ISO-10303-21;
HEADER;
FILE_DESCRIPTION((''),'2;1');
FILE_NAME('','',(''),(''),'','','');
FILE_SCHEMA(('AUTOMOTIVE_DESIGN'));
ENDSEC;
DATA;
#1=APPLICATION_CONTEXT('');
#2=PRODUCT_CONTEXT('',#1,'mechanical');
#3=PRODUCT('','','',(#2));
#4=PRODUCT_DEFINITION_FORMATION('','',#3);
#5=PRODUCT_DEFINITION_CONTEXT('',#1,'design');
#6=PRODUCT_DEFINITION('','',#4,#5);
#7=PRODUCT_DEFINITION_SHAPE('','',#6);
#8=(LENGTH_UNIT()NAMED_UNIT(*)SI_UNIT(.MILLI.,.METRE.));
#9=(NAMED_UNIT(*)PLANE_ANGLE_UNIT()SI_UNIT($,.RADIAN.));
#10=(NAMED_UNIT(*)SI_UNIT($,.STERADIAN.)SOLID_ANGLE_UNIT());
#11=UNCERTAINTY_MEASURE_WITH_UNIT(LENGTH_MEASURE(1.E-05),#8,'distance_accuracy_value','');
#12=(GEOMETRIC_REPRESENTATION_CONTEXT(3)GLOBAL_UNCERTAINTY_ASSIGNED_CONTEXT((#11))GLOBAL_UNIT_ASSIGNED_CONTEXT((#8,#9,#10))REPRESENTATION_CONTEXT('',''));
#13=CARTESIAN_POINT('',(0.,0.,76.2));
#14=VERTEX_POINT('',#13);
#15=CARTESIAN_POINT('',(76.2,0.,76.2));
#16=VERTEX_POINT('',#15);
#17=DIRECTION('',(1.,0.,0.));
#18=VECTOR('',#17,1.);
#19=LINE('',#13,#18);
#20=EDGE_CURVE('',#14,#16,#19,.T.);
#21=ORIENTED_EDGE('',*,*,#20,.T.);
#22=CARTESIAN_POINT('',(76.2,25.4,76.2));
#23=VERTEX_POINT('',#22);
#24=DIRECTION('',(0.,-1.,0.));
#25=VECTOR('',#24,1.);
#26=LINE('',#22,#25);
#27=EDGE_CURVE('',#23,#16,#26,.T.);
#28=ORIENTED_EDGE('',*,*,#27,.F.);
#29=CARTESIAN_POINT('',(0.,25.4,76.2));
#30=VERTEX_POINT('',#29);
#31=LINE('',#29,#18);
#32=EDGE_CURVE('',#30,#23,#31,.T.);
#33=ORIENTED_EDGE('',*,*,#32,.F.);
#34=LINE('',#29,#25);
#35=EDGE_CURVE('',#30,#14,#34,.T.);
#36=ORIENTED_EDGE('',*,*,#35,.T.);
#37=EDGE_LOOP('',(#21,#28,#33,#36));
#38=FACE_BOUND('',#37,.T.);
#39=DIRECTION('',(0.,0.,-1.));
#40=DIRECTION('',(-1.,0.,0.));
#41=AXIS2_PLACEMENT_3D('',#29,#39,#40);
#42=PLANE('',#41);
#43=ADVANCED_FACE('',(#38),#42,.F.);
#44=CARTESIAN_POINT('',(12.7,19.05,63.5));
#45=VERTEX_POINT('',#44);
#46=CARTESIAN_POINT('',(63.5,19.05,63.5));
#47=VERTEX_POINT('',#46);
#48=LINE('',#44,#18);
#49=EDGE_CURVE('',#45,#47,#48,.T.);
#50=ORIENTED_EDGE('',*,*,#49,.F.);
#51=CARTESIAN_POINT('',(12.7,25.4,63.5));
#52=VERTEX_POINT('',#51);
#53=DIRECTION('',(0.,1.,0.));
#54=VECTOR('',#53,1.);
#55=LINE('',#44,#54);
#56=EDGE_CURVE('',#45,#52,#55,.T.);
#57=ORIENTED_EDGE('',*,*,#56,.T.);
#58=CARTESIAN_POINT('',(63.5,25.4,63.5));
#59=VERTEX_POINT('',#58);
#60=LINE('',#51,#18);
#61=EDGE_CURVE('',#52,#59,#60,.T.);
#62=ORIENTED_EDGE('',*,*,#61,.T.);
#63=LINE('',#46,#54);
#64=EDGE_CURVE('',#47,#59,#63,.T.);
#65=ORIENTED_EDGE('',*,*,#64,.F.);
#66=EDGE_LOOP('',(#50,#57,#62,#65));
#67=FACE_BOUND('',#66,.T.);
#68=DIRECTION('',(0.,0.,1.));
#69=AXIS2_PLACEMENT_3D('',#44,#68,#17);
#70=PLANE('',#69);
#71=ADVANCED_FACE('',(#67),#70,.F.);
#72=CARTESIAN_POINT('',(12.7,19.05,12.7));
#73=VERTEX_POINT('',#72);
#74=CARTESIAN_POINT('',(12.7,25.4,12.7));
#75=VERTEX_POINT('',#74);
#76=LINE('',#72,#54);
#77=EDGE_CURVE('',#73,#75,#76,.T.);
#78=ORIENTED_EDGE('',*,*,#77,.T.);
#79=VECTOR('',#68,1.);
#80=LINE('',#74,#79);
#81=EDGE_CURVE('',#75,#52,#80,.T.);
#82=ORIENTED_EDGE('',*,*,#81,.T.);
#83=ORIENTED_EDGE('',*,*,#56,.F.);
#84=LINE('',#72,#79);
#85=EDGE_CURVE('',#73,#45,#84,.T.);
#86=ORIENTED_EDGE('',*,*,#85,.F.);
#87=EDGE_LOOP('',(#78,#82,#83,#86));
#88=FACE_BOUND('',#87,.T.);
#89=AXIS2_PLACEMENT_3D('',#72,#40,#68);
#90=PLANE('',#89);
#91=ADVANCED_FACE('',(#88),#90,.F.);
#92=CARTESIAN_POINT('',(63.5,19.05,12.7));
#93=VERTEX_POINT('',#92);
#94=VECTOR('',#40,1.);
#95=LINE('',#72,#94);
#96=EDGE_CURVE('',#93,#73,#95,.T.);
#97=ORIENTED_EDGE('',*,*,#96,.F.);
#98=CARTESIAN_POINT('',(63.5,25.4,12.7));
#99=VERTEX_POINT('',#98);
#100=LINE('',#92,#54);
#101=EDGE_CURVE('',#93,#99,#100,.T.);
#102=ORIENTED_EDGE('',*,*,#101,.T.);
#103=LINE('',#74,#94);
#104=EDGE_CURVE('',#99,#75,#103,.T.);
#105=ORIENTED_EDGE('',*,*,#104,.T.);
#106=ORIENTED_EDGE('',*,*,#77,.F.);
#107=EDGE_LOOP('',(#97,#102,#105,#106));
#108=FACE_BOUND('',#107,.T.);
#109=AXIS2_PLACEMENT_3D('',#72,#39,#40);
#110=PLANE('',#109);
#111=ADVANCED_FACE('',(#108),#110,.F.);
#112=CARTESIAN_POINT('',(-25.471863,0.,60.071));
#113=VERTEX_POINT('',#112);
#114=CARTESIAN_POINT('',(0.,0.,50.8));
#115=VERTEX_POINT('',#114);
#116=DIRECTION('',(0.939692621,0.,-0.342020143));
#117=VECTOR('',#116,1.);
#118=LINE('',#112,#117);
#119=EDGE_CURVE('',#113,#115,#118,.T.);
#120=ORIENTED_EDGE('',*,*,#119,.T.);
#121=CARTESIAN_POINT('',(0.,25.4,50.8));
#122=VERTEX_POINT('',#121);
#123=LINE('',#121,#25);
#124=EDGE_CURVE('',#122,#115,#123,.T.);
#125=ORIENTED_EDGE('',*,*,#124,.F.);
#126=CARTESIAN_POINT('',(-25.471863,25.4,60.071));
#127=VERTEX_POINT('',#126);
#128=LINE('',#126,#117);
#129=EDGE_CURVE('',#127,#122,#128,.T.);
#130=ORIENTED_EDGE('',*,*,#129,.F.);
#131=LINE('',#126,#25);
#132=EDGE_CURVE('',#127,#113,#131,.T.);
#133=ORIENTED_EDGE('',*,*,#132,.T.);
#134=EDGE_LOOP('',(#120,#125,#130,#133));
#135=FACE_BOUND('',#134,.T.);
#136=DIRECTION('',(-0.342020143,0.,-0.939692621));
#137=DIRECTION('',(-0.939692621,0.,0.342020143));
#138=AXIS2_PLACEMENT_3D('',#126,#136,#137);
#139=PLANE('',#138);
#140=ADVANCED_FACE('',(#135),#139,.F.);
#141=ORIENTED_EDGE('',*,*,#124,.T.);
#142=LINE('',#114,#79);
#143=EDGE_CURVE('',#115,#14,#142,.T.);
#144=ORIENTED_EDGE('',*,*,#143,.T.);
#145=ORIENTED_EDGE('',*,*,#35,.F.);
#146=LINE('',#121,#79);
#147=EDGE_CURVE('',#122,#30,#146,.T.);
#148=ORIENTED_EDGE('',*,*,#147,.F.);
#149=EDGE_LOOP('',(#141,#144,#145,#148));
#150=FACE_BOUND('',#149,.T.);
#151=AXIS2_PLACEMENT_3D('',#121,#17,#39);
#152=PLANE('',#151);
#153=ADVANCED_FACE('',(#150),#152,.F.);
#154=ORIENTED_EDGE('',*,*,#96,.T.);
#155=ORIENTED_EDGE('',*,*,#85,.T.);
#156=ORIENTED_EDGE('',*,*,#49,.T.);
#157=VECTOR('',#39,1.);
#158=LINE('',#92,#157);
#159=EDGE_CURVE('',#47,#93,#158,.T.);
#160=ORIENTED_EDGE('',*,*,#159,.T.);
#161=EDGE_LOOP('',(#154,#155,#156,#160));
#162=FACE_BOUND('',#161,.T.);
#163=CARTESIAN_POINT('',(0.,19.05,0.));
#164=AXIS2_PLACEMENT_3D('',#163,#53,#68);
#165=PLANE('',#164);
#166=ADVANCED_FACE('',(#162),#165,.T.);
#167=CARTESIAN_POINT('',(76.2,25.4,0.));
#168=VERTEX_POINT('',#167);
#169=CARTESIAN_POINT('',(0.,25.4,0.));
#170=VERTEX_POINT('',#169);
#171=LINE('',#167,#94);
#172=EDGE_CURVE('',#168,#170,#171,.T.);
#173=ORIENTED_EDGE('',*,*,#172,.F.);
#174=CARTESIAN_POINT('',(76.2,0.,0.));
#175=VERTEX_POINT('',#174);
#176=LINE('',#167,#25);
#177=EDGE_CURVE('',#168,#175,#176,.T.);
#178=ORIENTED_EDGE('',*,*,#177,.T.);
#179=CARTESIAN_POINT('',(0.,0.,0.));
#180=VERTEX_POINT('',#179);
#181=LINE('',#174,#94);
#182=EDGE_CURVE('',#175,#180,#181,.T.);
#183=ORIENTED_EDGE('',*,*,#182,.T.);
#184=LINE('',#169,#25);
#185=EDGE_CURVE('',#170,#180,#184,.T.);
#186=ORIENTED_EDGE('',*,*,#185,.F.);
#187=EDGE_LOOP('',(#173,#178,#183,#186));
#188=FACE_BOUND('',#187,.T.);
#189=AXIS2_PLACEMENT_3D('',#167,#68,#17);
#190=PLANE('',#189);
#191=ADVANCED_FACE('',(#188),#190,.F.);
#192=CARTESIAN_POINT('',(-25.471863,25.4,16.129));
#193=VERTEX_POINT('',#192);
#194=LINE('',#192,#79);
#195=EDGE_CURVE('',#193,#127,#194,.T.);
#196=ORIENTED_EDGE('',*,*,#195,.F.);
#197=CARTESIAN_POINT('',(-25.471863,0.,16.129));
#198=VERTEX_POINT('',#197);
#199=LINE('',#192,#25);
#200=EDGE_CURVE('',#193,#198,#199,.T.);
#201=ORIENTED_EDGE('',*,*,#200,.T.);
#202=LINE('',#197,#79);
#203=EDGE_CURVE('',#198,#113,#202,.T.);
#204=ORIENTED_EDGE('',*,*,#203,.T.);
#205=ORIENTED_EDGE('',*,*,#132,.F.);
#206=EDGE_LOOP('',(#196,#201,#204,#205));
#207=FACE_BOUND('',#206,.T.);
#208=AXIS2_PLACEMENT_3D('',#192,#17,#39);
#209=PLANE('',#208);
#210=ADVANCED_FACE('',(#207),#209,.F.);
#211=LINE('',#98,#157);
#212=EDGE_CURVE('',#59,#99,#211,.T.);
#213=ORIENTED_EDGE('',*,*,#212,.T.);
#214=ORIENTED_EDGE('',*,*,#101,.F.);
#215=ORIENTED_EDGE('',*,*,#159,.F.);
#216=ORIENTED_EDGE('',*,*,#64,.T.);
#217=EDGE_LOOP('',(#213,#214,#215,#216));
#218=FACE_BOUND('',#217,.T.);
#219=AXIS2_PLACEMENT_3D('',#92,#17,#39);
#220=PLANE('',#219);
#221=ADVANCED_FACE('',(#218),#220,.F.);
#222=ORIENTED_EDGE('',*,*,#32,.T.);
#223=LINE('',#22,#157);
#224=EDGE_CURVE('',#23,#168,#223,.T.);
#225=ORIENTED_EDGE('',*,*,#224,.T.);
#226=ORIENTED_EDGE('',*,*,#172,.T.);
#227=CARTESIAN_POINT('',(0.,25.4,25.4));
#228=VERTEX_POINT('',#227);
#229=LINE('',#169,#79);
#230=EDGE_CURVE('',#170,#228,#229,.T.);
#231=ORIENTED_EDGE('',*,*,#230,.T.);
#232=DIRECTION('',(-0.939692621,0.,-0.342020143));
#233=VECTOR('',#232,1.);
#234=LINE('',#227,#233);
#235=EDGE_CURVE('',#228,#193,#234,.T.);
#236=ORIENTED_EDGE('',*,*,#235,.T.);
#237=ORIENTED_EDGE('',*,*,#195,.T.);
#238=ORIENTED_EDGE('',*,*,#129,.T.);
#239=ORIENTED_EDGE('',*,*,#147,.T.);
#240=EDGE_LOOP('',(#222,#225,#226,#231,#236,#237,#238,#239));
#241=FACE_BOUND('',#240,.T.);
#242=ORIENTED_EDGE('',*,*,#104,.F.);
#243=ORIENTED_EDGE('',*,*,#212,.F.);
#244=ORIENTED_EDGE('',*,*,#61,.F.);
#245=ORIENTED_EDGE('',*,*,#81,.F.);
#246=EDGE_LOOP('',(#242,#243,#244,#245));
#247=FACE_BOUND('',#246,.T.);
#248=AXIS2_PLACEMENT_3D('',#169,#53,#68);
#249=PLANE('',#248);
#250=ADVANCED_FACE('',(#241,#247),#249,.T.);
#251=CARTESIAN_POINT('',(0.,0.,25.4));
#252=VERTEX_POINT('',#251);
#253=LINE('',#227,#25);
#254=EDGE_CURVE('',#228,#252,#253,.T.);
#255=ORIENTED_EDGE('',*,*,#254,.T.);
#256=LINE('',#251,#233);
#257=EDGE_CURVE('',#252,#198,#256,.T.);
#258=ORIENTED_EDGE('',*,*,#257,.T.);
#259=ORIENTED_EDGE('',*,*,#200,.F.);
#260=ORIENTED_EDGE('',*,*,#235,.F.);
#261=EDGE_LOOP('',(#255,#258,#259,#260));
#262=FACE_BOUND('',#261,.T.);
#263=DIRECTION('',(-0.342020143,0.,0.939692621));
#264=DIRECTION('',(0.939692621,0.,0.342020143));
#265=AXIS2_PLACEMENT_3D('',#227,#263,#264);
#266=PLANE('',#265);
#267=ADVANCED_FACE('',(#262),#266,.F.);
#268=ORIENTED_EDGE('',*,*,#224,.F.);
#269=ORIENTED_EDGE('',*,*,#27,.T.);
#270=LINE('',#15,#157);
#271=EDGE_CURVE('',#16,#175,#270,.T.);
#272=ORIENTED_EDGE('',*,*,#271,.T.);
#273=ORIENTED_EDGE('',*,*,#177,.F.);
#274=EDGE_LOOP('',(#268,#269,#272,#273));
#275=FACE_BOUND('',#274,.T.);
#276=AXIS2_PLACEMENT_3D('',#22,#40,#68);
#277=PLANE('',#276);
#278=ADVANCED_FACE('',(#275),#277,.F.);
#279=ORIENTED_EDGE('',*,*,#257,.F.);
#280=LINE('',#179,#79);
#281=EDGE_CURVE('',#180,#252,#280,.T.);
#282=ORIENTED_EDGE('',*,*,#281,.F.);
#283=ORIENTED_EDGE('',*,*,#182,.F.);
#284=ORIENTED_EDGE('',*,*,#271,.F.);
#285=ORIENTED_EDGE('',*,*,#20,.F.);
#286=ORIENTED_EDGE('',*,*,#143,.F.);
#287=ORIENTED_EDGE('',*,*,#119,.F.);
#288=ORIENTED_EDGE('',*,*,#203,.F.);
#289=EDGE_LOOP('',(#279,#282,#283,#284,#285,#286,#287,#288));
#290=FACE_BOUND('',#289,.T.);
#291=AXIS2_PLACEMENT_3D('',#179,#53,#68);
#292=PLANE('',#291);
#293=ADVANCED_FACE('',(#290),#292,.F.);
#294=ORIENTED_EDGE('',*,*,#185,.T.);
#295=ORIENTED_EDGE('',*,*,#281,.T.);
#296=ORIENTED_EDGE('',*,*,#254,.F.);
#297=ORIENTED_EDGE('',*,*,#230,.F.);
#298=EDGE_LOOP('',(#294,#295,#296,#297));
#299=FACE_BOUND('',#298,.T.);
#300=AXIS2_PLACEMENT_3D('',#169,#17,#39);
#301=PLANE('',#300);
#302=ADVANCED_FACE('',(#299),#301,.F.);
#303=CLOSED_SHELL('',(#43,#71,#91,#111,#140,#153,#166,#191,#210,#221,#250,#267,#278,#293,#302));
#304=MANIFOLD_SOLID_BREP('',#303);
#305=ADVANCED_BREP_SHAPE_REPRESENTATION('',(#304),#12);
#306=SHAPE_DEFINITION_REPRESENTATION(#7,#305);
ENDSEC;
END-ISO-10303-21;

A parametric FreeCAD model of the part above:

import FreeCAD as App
import Part
import Sketcher
from FreeCAD import Vector
Q = App.Units.Quantity

doc = App.newDocument("Part")
body = doc.addObject("PartDesign::Body", "Body")

# Sketch on XZ plane
sketch1 = doc.addObject("Sketcher::SketchObject", "Sketch")
body.addObject(sketch1)
sketch1.AttachmentSupport = (doc.XZ_Plane, [""])
sketch1.MapMode = "FlatFace"
sketch1.addGeometry(Part.LineSegment(Vector(0, 25, 0), Vector(-25, 16, 0)), False)
sketch1.addGeometry(Part.LineSegment(Vector(-25, 16, 0), Vector(-25, 60, 0)), False)
sketch1.addGeometry(Part.LineSegment(Vector(-25, 60, 0), Vector(0, 51, 0)), False)
sketch1.addGeometry(Part.LineSegment(Vector(0, 51, 0), Vector(0, 76, 0)), False)
sketch1.addGeometry(Part.LineSegment(Vector(0, 76, 0), Vector(76, 76, 0)), False)
sketch1.addGeometry(Part.LineSegment(Vector(76, 76, 0), Vector(76, 0, 0)), False)
sketch1.addGeometry(Part.LineSegment(Vector(76, 0, 0), Vector(0, 0, 0)), False)
sketch1.addGeometry(Part.LineSegment(Vector(0, 0, 0), Vector(0, 25, 0)), False)
sketch1.addConstraint(Sketcher.Constraint("Coincident", 0, 2, 1, 1))
sketch1.addConstraint(Sketcher.Constraint("Coincident", 1, 2, 2, 1))
sketch1.addConstraint(Sketcher.Constraint("Coincident", 2, 2, 3, 1))
sketch1.addConstraint(Sketcher.Constraint("Coincident", 3, 2, 4, 1))
sketch1.addConstraint(Sketcher.Constraint("Coincident", 4, 2, 5, 1))
sketch1.addConstraint(Sketcher.Constraint("Coincident", 5, 2, 6, 1))
sketch1.addConstraint(Sketcher.Constraint("Coincident", 6, 2, 7, 1))
sketch1.addConstraint(Sketcher.Constraint("Coincident", 7, 2, 0, 1))
sketch1.addConstraint(Sketcher.Constraint("Vertical", 1))
sketch1.addConstraint(Sketcher.Constraint("Vertical", 3))
sketch1.addConstraint(Sketcher.Constraint("Horizontal", 4))
sketch1.addConstraint(Sketcher.Constraint("Vertical", 5))
sketch1.addConstraint(Sketcher.Constraint("Horizontal", 6))
sketch1.addConstraint(Sketcher.Constraint("Vertical", 7))
sketch1.addConstraint(Sketcher.Constraint("Coincident", 6, 2, -1, 1))
sketch1.addConstraint(Sketcher.Constraint("PointOnObject", 2, 2, -2))
sketch1.addConstraint(Sketcher.Constraint("Equal", 6, 5))
sketch1.addConstraint(Sketcher.Constraint("Equal", 3, 7))
sketch1.addConstraint(Sketcher.Constraint("Equal", 0, 2))
sketch1.addConstraint(Sketcher.Constraint("DistanceX", 4, 1, 4, 2, Q("3 in")))
sketch1.addConstraint(Sketcher.Constraint("DistanceY", 3, 1, 3, 2, Q("1 in")))
sketch1.addConstraint(Sketcher.Constraint("Angle", 0, Q("-160 deg")))
sketch1.addConstraint(Sketcher.Constraint("DistanceY", 1, 1, 1, 2, Q("1.73 in")))
pad1 = doc.addObject("PartDesign::Pad", "Pad")
body.addObject(pad1)
pad1.Profile = sketch1
pad1.Length = Q("1 in")
pad1.Reversed = True

# Sketch on XZ plane
sketch2 = doc.addObject("Sketcher::SketchObject", "Sketch001")
body.addObject(sketch2)
sketch2.AttachmentSupport = (doc.XZ_Plane, [""])
sketch2.MapMode = "FlatFace"
sketch2.AttachmentOffset = App.Placement(Vector(0, 0, -1 * 25.4), App.Rotation())
sketch2.addGeometry(Part.LineSegment(Vector(13, 13, 0), Vector(13, 64, 0)), False)
sketch2.addGeometry(Part.LineSegment(Vector(13, 64, 0), Vector(64, 64, 0)), False)
sketch2.addGeometry(Part.LineSegment(Vector(64, 64, 0), Vector(64, 13, 0)), False)
sketch2.addGeometry(Part.LineSegment(Vector(64, 13, 0), Vector(13, 13, 0)), False)
sketch2.addConstraint(Sketcher.Constraint("Coincident", 0, 2, 1, 1))
sketch2.addConstraint(Sketcher.Constraint("Coincident", 1, 2, 2, 1))
sketch2.addConstraint(Sketcher.Constraint("Coincident", 2, 2, 3, 1))
sketch2.addConstraint(Sketcher.Constraint("Coincident", 3, 2, 0, 1))
sketch2.addConstraint(Sketcher.Constraint("Vertical", 0))
sketch2.addConstraint(Sketcher.Constraint("Horizontal", 1))
sketch2.addConstraint(Sketcher.Constraint("Vertical", 2))
sketch2.addConstraint(Sketcher.Constraint("Horizontal", 3))
sketch2.addConstraint(Sketcher.Constraint("Equal", 3, 0))
sketch2.addConstraint(Sketcher.Constraint("DistanceX", 1, 1, 1, 2, Q("2 in")))
sketch2.addConstraint(Sketcher.Constraint("DistanceX", -1, 1, 0, 2, Q("0.5 in")))
sketch2.addConstraint(Sketcher.Constraint("DistanceY", -1, 1, 0, 2, Q("2.5 in")))
pocket1 = doc.addObject("PartDesign::Pocket", "Pocket")
body.addObject(pocket1)
pocket1.Profile = sketch2
pocket1.Length = Q("0.25 in")
pocket1.Reversed = True

doc.recompute()
